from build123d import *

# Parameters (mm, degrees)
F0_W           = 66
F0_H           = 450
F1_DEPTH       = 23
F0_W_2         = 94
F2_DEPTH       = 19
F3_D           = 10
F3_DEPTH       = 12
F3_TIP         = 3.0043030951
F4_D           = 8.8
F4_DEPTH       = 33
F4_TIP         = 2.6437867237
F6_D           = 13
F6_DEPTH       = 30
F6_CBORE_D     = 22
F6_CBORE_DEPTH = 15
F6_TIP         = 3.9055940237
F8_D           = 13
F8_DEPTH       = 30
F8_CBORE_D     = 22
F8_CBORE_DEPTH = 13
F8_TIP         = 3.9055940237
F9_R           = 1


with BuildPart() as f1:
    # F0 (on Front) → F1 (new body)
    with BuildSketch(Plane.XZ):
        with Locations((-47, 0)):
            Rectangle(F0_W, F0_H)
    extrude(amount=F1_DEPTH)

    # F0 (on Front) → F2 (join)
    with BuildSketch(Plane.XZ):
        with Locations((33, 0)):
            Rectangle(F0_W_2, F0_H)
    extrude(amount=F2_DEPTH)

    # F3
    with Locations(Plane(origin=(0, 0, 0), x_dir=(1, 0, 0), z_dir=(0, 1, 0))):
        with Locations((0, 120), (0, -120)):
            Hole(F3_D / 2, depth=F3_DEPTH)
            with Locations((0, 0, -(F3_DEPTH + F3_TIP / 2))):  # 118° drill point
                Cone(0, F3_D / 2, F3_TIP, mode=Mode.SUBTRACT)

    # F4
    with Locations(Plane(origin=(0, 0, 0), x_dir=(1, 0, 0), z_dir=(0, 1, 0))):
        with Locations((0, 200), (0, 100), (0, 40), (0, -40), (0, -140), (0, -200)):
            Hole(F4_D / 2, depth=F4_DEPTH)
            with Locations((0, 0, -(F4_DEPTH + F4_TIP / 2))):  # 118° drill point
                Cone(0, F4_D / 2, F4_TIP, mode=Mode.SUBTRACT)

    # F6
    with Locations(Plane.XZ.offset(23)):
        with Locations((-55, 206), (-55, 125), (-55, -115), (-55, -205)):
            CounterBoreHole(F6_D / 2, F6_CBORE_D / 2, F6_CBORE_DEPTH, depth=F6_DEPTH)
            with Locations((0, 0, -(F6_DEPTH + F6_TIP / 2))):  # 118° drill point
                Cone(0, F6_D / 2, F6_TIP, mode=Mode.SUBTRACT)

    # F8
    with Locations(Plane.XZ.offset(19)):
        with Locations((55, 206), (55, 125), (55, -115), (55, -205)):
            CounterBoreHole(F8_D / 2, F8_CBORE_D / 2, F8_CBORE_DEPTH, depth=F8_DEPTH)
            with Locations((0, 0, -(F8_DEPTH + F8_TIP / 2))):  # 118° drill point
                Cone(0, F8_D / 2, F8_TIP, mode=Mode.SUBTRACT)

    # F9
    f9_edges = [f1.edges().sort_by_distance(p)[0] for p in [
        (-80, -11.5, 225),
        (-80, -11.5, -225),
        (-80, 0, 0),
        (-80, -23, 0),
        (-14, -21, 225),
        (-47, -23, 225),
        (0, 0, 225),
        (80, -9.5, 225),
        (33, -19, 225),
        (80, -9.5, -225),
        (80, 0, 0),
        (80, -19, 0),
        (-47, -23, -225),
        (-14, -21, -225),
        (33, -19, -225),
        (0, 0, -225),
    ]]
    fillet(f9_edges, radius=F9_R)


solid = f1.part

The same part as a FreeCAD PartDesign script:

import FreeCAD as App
import Part
import Sketcher


def edges_at(feature, points):
    """Names of the edges that pass closest to the given points."""
    edges = feature.Shape.Edges
    near = lambda p: min(range(len(edges)), key=lambda i: edges[i].distToShape(Part.Vertex(*p))[0])
    return sorted({f"Edge{near(p) + 1}" for p in points})

doc = App.newDocument("Part")
body = doc.addObject("PartDesign::Body", "Body")

# Sketch on XZ plane
sketch1 = doc.addObject("Sketcher::SketchObject", "Sketch")
body.addObject(sketch1)
sketch1.AttachmentSupport = (doc.XZ_Plane, [""])
sketch1.MapMode = "FlatFace"
sketch1.addGeometry([
    Part.LineSegment(App.Vector(-80, 225, 0), App.Vector(-80, -225, 0)),
    Part.LineSegment(App.Vector(-80, -225, 0), App.Vector(-14, -225, 0)),
    Part.LineSegment(App.Vector(-14, -225, 0), App.Vector(-14, 225, 0)),
    Part.LineSegment(App.Vector(-14, 225, 0), App.Vector(-80, 225, 0)),
], False)
sketch1.addConstraint([
    Sketcher.Constraint("Coincident", 0, 2, 1, 1),
    Sketcher.Constraint("Coincident", 1, 2, 2, 1),
    Sketcher.Constraint("Coincident", 2, 2, 3, 1),
    Sketcher.Constraint("Coincident", 3, 2, 0, 1),
    Sketcher.Constraint("Vertical", 0),
    Sketcher.Constraint("Horizontal", 1),
    Sketcher.Constraint("Vertical", 2),
    Sketcher.Constraint("Horizontal", 3),
    Sketcher.Constraint("DistanceX", 1, 1, 1, 2, 66.0),
    Sketcher.Constraint("DistanceY", 0, 2, 0, 1, 450.0),
    Sketcher.Constraint("DistanceX", 0, 2, -1, 1, 80.0),
    Sketcher.Constraint("DistanceY", 0, 2, -1, 1, 225.0),
])
pad1 = doc.addObject("PartDesign::Pad", "Pad")
body.addObject(pad1)
pad1.Profile = sketch1
pad1.Length = 23

# Sketch on XZ plane
sketch2 = doc.addObject("Sketcher::SketchObject", "Sketch001")
body.addObject(sketch2)
sketch2.AttachmentSupport = (doc.XZ_Plane, [""])
sketch2.MapMode = "FlatFace"
sketch2.addGeometry([
    Part.LineSegment(App.Vector(-14, 225, 0), App.Vector(-14, -225, 0)),
    Part.LineSegment(App.Vector(-14, -225, 0), App.Vector(80, -225, 0)),
    Part.LineSegment(App.Vector(80, -225, 0), App.Vector(80, 225, 0)),
    Part.LineSegment(App.Vector(80, 225, 0), App.Vector(-14, 225, 0)),
], False)
sketch2.addConstraint([
    Sketcher.Constraint("Coincident", 0, 2, 1, 1),
    Sketcher.Constraint("Coincident", 1, 2, 2, 1),
    Sketcher.Constraint("Coincident", 2, 2, 3, 1),
    Sketcher.Constraint("Coincident", 3, 2, 0, 1),
    Sketcher.Constraint("Vertical", 0),
    Sketcher.Constraint("Horizontal", 1),
    Sketcher.Constraint("Vertical", 2),
    Sketcher.Constraint("Horizontal", 3),
    Sketcher.Constraint("DistanceX", 1, 1, 1, 2, 94.0),
    Sketcher.Constraint("DistanceY", 0, 2, 0, 1, 450.0),
    Sketcher.Constraint("DistanceX", 0, 2, -1, 1, 14.0),
    Sketcher.Constraint("DistanceY", 0, 2, -1, 1, 225.0),
])
pad2 = doc.addObject("PartDesign::Pad", "Pad001")
body.addObject(pad2)
pad2.Profile = sketch2
pad2.Length = 19

# Sketch on XZ plane
sketch3 = doc.addObject("Sketcher::SketchObject", "Sketch002")
body.addObject(sketch3)
sketch3.AttachmentSupport = (doc.XZ_Plane, [""])
sketch3.MapMode = "FlatFace"
sketch3.addGeometry([
    Part.Circle(App.Vector(0, -120, 0), App.Vector(0, 0, 1), 5),
    Part.Circle(App.Vector(0, 120, 0), App.Vector(0, 0, 1), 5),
], False)
sketch3.addConstraint([
    Sketcher.Constraint("Equal", 0, 1),
    Sketcher.Constraint("Symmetric", 0, 3, 1, 3, -1, 1),
    Sketcher.Constraint("PointOnObject", 0, 3, -2),
    Sketcher.Constraint("Diameter", 0, 10.0),
    Sketcher.Constraint("DistanceY", 0, 3, -1, 1, 120.0),
])
doc.recompute()
hole = doc.addObject("PartDesign::Hole", "Hole")
body.addObject(hole)
hole.Profile = sketch3
hole.ThreadType = "None"
hole.Diameter = 10
hole.DepthType = "Dimension"
hole.Depth = 12
hole.DrillPoint = "Angled"
hole.DrillPointAngle = 118
hole.Reversed = True

# Sketch on XZ plane
sketch4 = doc.addObject("Sketcher::SketchObject", "Sketch003")
body.addObject(sketch4)
sketch4.AttachmentSupport = (doc.XZ_Plane, [""])
sketch4.MapMode = "FlatFace"
sketch4.addGeometry([
    Part.Circle(App.Vector(0, -200, 0), App.Vector(0, 0, 1), 4.4),  # 0
    Part.Circle(App.Vector(0, -100, 0), App.Vector(0, 0, 1), 4.4),  # 1
    Part.Circle(App.Vector(0, -40, 0), App.Vector(0, 0, 1), 4.4),  # 2
    Part.Circle(App.Vector(0, 40, 0), App.Vector(0, 0, 1), 4.4),  # 3
    Part.Circle(App.Vector(0, 140, 0), App.Vector(0, 0, 1), 4.4),  # 4
    Part.Circle(App.Vector(0, 200, 0), App.Vector(0, 0, 1), 4.4),  # 5
], False)
sketch4.addConstraint([
    Sketcher.Constraint("Equal", 0, 1),
    Sketcher.Constraint("Equal", 1, 2),
    Sketcher.Constraint("Equal", 2, 3),
    Sketcher.Constraint("Equal", 3, 4),
    Sketcher.Constraint("Equal", 4, 5),
    Sketcher.Constraint("Symmetric", 2, 3, 3, 3, -1, 1),
    Sketcher.Constraint("Symmetric", 0, 3, 5, 3, -1, 1),
    Sketcher.Constraint("PointOnObject", 0, 3, -2),
    Sketcher.Constraint("PointOnObject", 1, 3, -2),
    Sketcher.Constraint("PointOnObject", 2, 3, -2),
    Sketcher.Constraint("PointOnObject", 4, 3, -2),
    Sketcher.Constraint("Diameter", 0, 8.8),
    Sketcher.Constraint("DistanceY", 0, 3, -1, 1, 200.0),
    Sketcher.Constraint("DistanceY", 1, 3, -1, 1, 100.0),
    Sketcher.Constraint("DistanceY", 2, 3, -1, 1, 40.0),
    Sketcher.Constraint("DistanceY", -1, 1, 4, 3, 140.0),
])
doc.recompute()
hole2 = doc.addObject("PartDesign::Hole", "Hole001")
body.addObject(hole2)
hole2.Profile = sketch4
hole2.ThreadType = "None"
hole2.Diameter = 8.8
hole2.DepthType = "Dimension"
hole2.Depth = 33
hole2.DrillPoint = "Angled"
hole2.DrillPointAngle = 118
hole2.Reversed = True

# Sketch on XZ plane
sketch5 = doc.addObject("Sketcher::SketchObject", "Sketch004")
body.addObject(sketch5)
sketch5.AttachmentSupport = (doc.XZ_Plane, [""])
sketch5.MapMode = "FlatFace"
sketch5.AttachmentOffset = App.Placement(App.Vector(0, 0, 23), App.Rotation())
sketch5.addGeometry([
    Part.Circle(App.Vector(-55, 206, 0), App.Vector(0, 0, 1), 6),
    Part.Circle(App.Vector(-55, 125, 0), App.Vector(0, 0, 1), 6),
    Part.Circle(App.Vector(-55, -115, 0), App.Vector(0, 0, 1), 6),
    Part.Circle(App.Vector(-55, -205, 0), App.Vector(0, 0, 1), 6),
], False)
sketch5.addConstraint([
    Sketcher.Constraint("Equal", 0, 1),
    Sketcher.Constraint("Equal", 1, 2),
    Sketcher.Constraint("Equal", 2, 3),
    Sketcher.Constraint("Vertical", 0, 3, 1, 3),
    Sketcher.Constraint("Vertical", 1, 3, 2, 3),
    Sketcher.Constraint("Vertical", 2, 3, 3, 3),
    Sketcher.Constraint("Diameter", 0, 13.0),
    Sketcher.Constraint("DistanceX", 0, 3, -1, 1, 55.0),
    Sketcher.Constraint("DistanceY", -1, 1, 0, 3, 206.0),
    Sketcher.Constraint("DistanceY", -1, 1, 1, 3, 125.0),
    Sketcher.Constraint("DistanceY", 2, 3, -1, 1, 115.0),
    Sketcher.Constraint("DistanceY", 3, 3, -1, 1, 205.0),
])
doc.recompute()
hole3 = doc.addObject("PartDesign::Hole", "Hole002")
body.addObject(hole3)
hole3.Profile = sketch5
hole3.ThreadType = "None"
hole3.Diameter = 13
hole3.DepthType = "Dimension"
hole3.Depth = 30
hole3.DrillPoint = "Angled"
hole3.DrillPointAngle = 118
hole3.HoleCutType = "Counterbore"
hole3.HoleCutDiameter = 22
hole3.HoleCutDepth = 15

# Sketch on XZ plane
sketch6 = doc.addObject("Sketcher::SketchObject", "Sketch005")
body.addObject(sketch6)
sketch6.AttachmentSupport = (doc.XZ_Plane, [""])
sketch6.MapMode = "FlatFace"
sketch6.AttachmentOffset = App.Placement(App.Vector(0, 0, 19), App.Rotation())
sketch6.addGeometry([
    Part.Circle(App.Vector(55, 206, 0), App.Vector(0, 0, 1), 6),
    Part.Circle(App.Vector(55, 125, 0), App.Vector(0, 0, 1), 6),
    Part.Circle(App.Vector(55, -115, 0), App.Vector(0, 0, 1), 6),
    Part.Circle(App.Vector(55, -205, 0), App.Vector(0, 0, 1), 6),
], False)
sketch6.addConstraint([
    Sketcher.Constraint("Equal", 0, 1),
    Sketcher.Constraint("Equal", 1, 2),
    Sketcher.Constraint("Equal", 2, 3),
    Sketcher.Constraint("Vertical", 0, 3, 1, 3),
    Sketcher.Constraint("Vertical", 1, 3, 2, 3),
    Sketcher.Constraint("Vertical", 2, 3, 3, 3),
    Sketcher.Constraint("Diameter", 0, 13.0),
    Sketcher.Constraint("DistanceX", -1, 1, 0, 3, 55.0),
    Sketcher.Constraint("DistanceY", -1, 1, 0, 3, 206.0),
    Sketcher.Constraint("DistanceY", -1, 1, 1, 3, 125.0),
    Sketcher.Constraint("DistanceY", 2, 3, -1, 1, 115.0),
    Sketcher.Constraint("DistanceY", 3, 3, -1, 1, 205.0),
])
doc.recompute()
hole4 = doc.addObject("PartDesign::Hole", "Hole003")
body.addObject(hole4)
hole4.Profile = sketch6
hole4.ThreadType = "None"
hole4.Diameter = 13
hole4.DepthType = "Dimension"
hole4.Depth = 30
hole4.DrillPoint = "Angled"
hole4.DrillPointAngle = 118
hole4.HoleCutType = "Counterbore"
hole4.HoleCutDiameter = 22
hole4.HoleCutDepth = 13
doc.recompute()

fillet = doc.addObject("PartDesign::Fillet", "Fillet")
body.addObject(fillet)
fillet.Base = (hole4, edges_at(hole4, [
    (-80, -11.5, 225),
    (-80, -11.5, -225),
    (-80, 0, 0),
    (-80, -23, 0),
    (-14, -21, 225),
    (-47, -23, 225),
    (0, 0, 225),
    (80, -9.5, 225),
    (33, -19, 225),
    (80, -9.5, -225),
    (80, 0, 0),
    (80, -19, 0),
    (-47, -23, -225),
    (-14, -21, -225),
    (33, -19, -225),
    (0, 0, -225),
]))
fillet.Radius = 1

doc.recompute()
